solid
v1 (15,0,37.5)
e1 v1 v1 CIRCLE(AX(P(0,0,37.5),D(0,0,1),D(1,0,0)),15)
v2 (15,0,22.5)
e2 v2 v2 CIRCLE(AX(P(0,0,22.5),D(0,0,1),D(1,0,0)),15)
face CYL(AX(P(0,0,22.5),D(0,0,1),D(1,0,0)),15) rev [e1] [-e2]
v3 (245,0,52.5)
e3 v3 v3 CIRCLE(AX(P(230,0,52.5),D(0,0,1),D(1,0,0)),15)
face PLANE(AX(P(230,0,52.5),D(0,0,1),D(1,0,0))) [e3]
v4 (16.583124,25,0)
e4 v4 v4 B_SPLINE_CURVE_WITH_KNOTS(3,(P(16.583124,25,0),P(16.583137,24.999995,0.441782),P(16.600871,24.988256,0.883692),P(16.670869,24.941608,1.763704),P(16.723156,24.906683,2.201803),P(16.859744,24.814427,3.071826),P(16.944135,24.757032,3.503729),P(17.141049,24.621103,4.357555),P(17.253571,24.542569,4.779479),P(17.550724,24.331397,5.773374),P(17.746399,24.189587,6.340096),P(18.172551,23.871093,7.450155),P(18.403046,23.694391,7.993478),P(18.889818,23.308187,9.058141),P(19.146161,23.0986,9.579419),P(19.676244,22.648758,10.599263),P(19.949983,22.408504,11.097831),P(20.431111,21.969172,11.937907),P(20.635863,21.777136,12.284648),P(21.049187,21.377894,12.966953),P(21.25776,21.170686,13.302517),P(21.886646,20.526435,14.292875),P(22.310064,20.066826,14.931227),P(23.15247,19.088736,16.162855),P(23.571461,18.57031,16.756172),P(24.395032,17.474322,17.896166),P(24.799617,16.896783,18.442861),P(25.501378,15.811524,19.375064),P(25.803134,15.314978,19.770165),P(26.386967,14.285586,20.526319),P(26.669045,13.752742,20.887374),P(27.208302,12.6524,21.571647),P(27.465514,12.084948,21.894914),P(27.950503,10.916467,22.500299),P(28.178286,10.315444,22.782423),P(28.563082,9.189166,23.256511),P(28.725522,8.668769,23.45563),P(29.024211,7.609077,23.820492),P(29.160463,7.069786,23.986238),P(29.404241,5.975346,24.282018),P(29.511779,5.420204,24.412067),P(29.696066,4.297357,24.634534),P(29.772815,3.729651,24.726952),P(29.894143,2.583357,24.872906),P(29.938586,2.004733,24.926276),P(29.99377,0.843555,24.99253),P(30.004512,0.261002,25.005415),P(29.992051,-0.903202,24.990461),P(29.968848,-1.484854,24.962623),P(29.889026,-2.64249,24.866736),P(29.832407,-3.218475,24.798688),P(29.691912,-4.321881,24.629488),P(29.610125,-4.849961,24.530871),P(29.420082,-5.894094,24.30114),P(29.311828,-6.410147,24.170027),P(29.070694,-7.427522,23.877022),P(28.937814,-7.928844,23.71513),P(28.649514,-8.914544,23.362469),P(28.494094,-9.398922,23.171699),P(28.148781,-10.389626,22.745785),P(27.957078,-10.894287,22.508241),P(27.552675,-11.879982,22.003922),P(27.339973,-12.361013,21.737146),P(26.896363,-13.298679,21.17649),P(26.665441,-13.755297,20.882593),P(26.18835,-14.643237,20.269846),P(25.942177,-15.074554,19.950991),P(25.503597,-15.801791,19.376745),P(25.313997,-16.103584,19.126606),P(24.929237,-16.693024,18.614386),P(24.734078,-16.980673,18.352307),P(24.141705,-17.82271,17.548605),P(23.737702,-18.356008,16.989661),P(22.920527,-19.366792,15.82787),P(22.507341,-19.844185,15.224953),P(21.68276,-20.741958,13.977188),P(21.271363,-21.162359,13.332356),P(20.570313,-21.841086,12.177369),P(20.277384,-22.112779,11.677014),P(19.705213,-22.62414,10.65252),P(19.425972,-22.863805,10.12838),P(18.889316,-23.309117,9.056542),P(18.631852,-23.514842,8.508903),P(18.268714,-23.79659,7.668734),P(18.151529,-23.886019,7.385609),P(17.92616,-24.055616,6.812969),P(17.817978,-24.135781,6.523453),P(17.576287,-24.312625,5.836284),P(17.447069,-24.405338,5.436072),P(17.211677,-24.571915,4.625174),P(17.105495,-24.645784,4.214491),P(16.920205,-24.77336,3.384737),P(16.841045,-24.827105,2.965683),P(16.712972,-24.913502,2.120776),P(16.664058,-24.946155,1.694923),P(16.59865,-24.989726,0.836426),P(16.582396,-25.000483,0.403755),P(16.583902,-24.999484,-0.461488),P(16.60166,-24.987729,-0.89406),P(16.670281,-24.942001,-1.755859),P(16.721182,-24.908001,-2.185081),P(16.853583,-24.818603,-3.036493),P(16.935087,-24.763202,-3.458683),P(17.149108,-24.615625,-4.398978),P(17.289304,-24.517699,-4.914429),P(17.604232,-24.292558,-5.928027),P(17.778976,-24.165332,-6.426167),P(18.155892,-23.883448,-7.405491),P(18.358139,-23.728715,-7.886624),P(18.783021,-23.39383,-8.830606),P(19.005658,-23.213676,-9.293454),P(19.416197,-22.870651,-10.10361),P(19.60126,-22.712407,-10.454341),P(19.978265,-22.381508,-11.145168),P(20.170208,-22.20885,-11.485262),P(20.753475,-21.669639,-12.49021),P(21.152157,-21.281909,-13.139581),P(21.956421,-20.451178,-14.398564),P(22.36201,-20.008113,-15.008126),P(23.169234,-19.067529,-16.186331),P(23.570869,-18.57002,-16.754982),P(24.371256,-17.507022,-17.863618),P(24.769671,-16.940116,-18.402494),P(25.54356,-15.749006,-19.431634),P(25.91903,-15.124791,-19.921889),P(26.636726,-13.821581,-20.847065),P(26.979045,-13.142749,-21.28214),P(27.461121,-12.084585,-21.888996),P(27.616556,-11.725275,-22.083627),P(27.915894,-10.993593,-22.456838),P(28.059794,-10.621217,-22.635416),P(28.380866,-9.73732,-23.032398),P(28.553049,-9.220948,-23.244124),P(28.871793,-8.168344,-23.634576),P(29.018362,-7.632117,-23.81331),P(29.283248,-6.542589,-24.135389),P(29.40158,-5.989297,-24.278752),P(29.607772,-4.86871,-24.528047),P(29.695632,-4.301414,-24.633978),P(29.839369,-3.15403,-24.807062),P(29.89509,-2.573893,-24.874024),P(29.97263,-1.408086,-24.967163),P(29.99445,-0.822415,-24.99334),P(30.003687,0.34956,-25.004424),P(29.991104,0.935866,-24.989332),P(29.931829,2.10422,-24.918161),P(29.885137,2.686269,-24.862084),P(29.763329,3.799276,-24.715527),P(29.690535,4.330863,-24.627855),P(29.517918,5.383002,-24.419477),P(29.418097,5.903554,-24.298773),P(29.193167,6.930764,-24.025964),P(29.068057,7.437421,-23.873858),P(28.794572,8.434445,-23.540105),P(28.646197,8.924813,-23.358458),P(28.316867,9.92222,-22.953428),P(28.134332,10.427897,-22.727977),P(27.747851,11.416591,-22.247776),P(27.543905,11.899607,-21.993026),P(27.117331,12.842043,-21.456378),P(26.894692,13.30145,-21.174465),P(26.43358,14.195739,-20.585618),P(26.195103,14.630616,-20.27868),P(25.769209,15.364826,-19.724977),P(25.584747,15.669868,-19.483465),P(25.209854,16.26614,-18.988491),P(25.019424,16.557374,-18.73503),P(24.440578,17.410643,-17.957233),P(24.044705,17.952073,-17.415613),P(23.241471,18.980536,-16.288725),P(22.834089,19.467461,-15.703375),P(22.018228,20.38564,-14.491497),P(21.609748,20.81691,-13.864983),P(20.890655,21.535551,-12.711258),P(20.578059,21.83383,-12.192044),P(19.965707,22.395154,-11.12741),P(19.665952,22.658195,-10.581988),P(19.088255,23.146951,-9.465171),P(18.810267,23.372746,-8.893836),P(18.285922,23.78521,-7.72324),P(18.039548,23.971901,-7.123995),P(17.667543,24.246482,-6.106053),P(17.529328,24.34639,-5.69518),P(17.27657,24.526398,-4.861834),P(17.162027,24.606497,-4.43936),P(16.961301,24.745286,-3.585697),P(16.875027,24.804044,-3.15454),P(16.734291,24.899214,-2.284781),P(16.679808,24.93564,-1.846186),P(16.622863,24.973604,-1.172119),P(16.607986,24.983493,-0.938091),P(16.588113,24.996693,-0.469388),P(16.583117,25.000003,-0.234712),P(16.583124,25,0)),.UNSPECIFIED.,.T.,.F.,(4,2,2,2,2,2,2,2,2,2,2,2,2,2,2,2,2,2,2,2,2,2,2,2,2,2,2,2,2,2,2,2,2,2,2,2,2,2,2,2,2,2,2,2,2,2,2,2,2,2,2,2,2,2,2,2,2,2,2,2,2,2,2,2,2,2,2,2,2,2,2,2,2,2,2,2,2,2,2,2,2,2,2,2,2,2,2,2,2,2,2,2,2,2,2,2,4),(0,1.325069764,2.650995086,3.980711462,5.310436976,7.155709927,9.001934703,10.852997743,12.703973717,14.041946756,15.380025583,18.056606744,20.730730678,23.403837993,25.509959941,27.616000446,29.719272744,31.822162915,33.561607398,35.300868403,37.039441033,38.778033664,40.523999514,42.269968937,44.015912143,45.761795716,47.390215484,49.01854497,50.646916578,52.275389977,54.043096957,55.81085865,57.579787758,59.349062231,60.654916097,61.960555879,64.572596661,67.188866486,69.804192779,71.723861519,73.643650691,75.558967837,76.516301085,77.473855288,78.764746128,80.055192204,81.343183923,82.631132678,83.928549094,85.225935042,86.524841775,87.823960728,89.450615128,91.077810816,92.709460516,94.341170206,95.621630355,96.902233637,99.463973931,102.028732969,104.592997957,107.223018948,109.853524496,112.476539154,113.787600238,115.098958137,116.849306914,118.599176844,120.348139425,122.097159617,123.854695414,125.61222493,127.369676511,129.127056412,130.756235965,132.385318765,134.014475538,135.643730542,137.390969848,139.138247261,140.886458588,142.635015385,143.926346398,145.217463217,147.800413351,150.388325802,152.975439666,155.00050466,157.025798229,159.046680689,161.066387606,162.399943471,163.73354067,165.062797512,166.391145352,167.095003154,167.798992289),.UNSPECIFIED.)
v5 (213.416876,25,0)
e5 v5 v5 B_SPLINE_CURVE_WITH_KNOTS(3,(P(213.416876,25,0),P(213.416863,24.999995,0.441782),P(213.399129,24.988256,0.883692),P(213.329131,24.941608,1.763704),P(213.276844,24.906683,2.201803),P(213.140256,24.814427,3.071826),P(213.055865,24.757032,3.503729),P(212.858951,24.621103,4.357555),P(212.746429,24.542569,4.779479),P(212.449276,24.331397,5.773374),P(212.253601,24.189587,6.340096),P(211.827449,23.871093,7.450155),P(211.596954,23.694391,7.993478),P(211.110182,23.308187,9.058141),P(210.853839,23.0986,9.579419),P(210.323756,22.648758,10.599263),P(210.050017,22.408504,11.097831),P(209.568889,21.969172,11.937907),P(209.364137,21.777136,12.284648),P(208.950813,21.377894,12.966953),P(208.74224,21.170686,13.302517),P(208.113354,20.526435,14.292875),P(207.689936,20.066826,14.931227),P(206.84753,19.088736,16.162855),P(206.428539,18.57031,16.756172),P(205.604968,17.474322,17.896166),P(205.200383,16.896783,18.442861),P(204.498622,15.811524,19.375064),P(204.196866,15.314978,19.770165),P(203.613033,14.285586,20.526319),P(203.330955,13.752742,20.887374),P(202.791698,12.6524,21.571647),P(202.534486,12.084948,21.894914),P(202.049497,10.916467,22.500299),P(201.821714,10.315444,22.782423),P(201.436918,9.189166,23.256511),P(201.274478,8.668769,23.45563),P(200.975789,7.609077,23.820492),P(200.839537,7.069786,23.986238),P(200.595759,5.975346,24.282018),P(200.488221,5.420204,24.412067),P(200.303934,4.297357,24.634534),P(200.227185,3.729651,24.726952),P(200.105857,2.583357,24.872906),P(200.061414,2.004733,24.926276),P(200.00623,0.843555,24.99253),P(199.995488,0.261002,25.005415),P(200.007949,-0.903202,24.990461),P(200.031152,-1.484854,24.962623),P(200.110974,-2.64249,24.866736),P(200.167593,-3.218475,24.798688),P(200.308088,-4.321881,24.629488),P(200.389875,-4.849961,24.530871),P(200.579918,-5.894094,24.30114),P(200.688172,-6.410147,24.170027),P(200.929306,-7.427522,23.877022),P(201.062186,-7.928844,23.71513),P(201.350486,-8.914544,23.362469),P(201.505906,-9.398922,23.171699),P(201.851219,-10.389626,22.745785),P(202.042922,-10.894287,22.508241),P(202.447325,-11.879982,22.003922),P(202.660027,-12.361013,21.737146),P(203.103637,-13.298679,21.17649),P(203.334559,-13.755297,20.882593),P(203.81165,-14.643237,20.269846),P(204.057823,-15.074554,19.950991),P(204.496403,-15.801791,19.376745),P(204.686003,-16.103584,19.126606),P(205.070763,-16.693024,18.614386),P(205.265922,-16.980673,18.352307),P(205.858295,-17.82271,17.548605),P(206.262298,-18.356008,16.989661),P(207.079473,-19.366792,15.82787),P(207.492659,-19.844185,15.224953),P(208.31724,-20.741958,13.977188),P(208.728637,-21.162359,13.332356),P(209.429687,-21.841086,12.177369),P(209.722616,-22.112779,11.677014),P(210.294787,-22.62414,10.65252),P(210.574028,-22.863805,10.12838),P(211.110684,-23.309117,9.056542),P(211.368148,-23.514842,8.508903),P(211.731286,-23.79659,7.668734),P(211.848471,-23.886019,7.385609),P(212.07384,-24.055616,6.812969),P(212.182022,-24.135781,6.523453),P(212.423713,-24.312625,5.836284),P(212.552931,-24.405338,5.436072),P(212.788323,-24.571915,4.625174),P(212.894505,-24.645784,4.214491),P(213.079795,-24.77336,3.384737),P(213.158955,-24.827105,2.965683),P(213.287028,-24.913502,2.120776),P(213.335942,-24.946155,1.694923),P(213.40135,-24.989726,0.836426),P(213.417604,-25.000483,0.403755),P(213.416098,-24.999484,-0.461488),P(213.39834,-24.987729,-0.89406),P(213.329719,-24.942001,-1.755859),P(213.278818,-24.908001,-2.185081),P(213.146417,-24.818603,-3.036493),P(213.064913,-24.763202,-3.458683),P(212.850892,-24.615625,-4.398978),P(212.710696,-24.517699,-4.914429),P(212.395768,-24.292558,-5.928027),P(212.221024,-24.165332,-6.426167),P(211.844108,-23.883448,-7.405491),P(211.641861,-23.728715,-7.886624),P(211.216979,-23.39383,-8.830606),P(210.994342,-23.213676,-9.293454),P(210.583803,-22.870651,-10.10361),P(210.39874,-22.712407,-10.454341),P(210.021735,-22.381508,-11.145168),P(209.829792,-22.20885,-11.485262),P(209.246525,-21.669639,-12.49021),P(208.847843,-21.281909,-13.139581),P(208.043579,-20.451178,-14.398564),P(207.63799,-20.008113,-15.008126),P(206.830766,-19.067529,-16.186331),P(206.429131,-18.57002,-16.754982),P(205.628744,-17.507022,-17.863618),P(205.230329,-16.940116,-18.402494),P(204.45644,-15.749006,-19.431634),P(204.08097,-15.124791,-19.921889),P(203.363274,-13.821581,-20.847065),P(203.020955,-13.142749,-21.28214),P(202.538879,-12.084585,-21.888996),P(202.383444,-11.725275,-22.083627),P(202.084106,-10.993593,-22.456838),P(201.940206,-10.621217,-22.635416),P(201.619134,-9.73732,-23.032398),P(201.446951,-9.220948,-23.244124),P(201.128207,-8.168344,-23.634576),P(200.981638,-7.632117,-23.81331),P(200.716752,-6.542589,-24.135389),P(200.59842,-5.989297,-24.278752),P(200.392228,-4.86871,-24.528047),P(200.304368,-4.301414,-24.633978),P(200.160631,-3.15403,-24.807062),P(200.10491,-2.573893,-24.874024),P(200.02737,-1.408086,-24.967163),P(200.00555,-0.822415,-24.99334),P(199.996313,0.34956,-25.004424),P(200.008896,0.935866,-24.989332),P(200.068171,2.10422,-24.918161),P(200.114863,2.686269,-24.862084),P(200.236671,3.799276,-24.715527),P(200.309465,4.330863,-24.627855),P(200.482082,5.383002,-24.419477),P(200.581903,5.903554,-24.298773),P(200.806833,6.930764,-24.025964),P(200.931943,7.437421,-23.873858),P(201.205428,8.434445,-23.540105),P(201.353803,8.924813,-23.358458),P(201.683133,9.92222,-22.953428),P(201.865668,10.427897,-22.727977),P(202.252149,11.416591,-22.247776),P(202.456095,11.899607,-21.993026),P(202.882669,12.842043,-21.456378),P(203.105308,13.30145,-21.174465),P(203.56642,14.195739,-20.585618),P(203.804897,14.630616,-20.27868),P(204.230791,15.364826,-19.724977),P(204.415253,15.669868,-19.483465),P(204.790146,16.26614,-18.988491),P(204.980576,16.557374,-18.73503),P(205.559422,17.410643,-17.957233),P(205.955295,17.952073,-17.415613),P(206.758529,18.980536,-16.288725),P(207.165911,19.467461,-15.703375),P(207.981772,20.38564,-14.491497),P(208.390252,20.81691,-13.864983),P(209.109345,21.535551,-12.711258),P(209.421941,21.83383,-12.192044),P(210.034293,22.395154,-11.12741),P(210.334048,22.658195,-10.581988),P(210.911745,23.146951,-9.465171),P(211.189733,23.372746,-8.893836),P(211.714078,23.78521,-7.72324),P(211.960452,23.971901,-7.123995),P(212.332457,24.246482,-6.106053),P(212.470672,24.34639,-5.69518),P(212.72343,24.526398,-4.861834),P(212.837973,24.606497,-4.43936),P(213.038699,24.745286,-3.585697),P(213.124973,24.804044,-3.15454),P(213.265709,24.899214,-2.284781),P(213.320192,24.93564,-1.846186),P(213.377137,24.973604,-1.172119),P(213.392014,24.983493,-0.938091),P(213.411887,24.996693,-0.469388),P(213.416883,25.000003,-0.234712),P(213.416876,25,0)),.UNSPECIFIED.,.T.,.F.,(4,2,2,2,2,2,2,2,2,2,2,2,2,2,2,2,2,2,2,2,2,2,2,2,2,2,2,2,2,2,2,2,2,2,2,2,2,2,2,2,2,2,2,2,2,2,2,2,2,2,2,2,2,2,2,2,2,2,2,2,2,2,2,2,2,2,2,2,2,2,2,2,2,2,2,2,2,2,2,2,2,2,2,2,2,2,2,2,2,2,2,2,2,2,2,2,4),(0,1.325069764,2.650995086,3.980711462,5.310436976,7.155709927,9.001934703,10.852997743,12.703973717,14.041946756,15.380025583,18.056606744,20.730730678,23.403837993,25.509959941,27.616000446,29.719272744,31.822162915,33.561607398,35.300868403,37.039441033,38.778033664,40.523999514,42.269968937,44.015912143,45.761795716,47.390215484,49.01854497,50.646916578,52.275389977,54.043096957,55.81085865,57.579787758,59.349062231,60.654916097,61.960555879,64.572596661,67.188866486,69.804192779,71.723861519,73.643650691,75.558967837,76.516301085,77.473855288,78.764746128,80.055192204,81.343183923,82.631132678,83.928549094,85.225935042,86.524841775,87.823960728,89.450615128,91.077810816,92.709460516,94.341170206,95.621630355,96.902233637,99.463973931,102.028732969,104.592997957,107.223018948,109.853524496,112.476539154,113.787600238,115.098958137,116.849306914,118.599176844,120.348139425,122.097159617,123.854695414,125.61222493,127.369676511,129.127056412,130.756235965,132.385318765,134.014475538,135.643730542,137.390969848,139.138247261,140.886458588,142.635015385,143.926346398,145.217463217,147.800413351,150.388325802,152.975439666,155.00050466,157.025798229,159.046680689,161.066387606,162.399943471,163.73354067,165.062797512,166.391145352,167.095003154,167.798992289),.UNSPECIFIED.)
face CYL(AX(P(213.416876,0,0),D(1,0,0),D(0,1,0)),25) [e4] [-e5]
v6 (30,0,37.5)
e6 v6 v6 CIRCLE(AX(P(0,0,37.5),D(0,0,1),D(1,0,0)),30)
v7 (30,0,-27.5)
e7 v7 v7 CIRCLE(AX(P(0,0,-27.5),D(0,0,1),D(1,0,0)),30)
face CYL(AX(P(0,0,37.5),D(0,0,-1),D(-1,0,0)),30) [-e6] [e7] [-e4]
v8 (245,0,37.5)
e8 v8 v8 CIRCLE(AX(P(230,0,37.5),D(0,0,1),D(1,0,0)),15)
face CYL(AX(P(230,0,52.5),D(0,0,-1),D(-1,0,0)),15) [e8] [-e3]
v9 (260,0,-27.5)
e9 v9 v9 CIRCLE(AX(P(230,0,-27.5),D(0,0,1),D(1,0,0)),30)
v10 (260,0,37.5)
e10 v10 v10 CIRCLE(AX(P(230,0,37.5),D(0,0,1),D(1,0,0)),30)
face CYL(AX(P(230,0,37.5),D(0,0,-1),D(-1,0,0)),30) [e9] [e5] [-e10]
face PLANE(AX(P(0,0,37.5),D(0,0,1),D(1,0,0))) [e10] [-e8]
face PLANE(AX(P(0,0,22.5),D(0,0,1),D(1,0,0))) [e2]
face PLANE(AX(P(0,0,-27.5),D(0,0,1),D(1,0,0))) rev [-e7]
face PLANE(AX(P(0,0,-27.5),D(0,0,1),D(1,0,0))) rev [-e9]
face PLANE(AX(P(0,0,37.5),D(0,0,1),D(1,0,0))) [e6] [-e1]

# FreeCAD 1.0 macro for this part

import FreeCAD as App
import Part
import Sketcher
from FreeCAD import Vector
Q = App.Units.Quantity


def add_polygon(sketch, points):
    """Adds a closed chain of lines whose ends are joined by coincident constraints."""
    first, n = sketch.GeometryCount, len(points)
    for a, b in zip(points, points[1:] + points[:1]):
        sketch.addGeometry(Part.LineSegment(App.Vector(*a, 0), App.Vector(*b, 0)), False)
    for i in range(n):
        sketch.addConstraint(Sketcher.Constraint("Coincident", first + i, 2, first + (i + 1) % n, 1))

doc = App.newDocument("Part")
params = doc.addObject("Spreadsheet::Sheet", "Params")
for row, (alias, value) in enumerate([
    ("sketch1_diameter", "60 mm"),
    ("pad1_length", "65 mm"),
    ("sketch2_diameter", "60 mm"),
    ("pad2_length", "65 mm"),
    ("sketch3_height", "25 mm"),
    ("revolution_angle", "360 deg"),
    ("sketch4_diameter", "30 mm"),
    ("pocket1_length", "15 mm"),
    ("sketch5_diameter", "30 mm"),
    ("pad3_length", "15 mm"),
], start=1):
    params.set(f"A{row}", alias)
    params.set(f"B{row}", "=" + value)
    params.setAlias(f"B{row}", alias)

body = doc.addObject("PartDesign::Body", "Body")

# Sketch on XY plane
sketch1 = doc.addObject("Sketcher::SketchObject", "Sketch")
body.addObject(sketch1)
sketch1.AttachmentSupport = (doc.XY_Plane, [""])
sketch1.MapMode = "FlatFace"
sketch1.AttachmentOffset = App.Placement(Vector(0, 0, 5), App.Rotation())
sketch1.addGeometry(Part.Circle(Vector(0, 0, 0), Vector(0, 0, 1), 30), False)
sketch1.addConstraint([
    Sketcher.Constraint("Coincident", 0, 3, -1, 1),
    Sketcher.Constraint("Diameter", 0, Q("60 mm")),
])
sketch1.setExpression("Constraints[1]", "Params.sketch1_diameter")
pad1 = doc.addObject("PartDesign::Pad", "Pad")
body.addObject(pad1)
pad1.Profile = sketch1
pad1.setExpression("Length", "Params.pad1_length")
pad1.Midplane = True
body2 = doc.addObject("PartDesign::Body", "Body001")

# Sketch on XY plane
sketch2 = doc.addObject("Sketcher::SketchObject", "Sketch001")
body2.addObject(sketch2)
sketch2.AttachmentSupport = (doc.getObject("XY_Plane001"), [""])
sketch2.MapMode = "FlatFace"
sketch2.AttachmentOffset = App.Placement(Vector(0, 0, 5), App.Rotation())
sketch2.addGeometry(Part.Circle(Vector(230, 0, 0), Vector(0, 0, 1), 30), False)
sketch2.addConstraint([
    Sketcher.Constraint("PointOnObject", 0, 3, -1),
    Sketcher.Constraint("Diameter", 0, Q("60 mm")),
    Sketcher.Constraint("DistanceX", -1, 1, 0, 3, Q("230 mm")),
])
sketch2.setExpression("Constraints[1]", "Params.sketch2_diameter")
pad2 = doc.addObject("PartDesign::Pad", "Pad001")
body2.addObject(pad2)
pad2.Profile = sketch2
pad2.setExpression("Length", "Params.pad2_length")
pad2.Midplane = True
body.AllowCompound = True
doc.recompute()

boolean = doc.addObject("PartDesign::Boolean", "Boolean")
body.addObject(boolean)
boolean.Type = "Fuse"
boolean.addObjects([body2])

# Sketch on XY plane
sketch3 = doc.addObject("Sketcher::SketchObject", "Sketch002")
body.addObject(sketch3)
sketch3.AttachmentSupport = (doc.XY_Plane, [""])
sketch3.MapMode = "FlatFace"
add_polygon(sketch3, [(17, 25), (17, 0), (213, 0), (213, 25)])  # lines 0-3
sketch3.addConstraint([
    Sketcher.Constraint("Vertical", 0),
    Sketcher.Constraint("Horizontal", 1),
    Sketcher.Constraint("Vertical", 2),
    Sketcher.Constraint("Horizontal", 3),
    Sketcher.Constraint("PointOnObject", 0, 2, -1),
    Sketcher.Constraint("DistanceY", 0, 2, 0, 1, Q("25 mm")),
    Sketcher.Constraint("DistanceX", 1, 1, 1, 2, Q("196.833752 mm")),
    Sketcher.Constraint("DistanceX", -1, 1, 0, 2, Q("16.583124 mm")),
])
sketch3.setExpression("Constraints[9]", "Params.sketch3_height")
revolution = doc.addObject("PartDesign::Revolution", "Revolution")
body.addObject(revolution)
revolution.Profile = sketch3
revolution.ReferenceAxis = (sketch3, ["H_Axis"])
revolution.setExpression("Angle", "Params.revolution_angle")

# Sketch on XY plane
sketch4 = doc.addObject("Sketcher::SketchObject", "Sketch003")
body.addObject(sketch4)
sketch4.AttachmentSupport = (doc.XY_Plane, [""])
sketch4.MapMode = "FlatFace"
sketch4.AttachmentOffset = App.Placement(Vector(0, 0, 37.5), App.Rotation())
sketch4.addGeometry(Part.Circle(Vector(0, 0, 0), Vector(0, 0, 1), 15), False)
sketch4.addConstraint([
    Sketcher.Constraint("Coincident", 0, 3, -1, 1),
    Sketcher.Constraint("Diameter", 0, Q("30 mm")),
])
sketch4.setExpression("Constraints[1]", "Params.sketch4_diameter")
pocket1 = doc.addObject("PartDesign::Pocket", "Pocket")
body.addObject(pocket1)
pocket1.Profile = sketch4
pocket1.setExpression("Length", "Params.pocket1_length")

# Sketch on XY plane
sketch5 = doc.addObject("Sketcher::SketchObject", "Sketch004")
body.addObject(sketch5)
sketch5.AttachmentSupport = (doc.XY_Plane, [""])
sketch5.MapMode = "FlatFace"
sketch5.AttachmentOffset = App.Placement(Vector(0, 0, 37.5), App.Rotation())
sketch5.addGeometry(Part.Circle(Vector(230, 0, 0), Vector(0, 0, 1), 15), False)
sketch5.addConstraint([
    Sketcher.Constraint("PointOnObject", 0, 3, -1),
    Sketcher.Constraint("Diameter", 0, Q("30 mm")),
    Sketcher.Constraint("DistanceX", -1, 1, 0, 3, Q("230 mm")),
])
sketch5.setExpression("Constraints[1]", "Params.sketch5_diameter")
pad3 = doc.addObject("PartDesign::Pad", "Pad002")
body.addObject(pad3)
pad3.Profile = sketch5
pad3.setExpression("Length", "Params.pad3_length")

doc.recompute()
